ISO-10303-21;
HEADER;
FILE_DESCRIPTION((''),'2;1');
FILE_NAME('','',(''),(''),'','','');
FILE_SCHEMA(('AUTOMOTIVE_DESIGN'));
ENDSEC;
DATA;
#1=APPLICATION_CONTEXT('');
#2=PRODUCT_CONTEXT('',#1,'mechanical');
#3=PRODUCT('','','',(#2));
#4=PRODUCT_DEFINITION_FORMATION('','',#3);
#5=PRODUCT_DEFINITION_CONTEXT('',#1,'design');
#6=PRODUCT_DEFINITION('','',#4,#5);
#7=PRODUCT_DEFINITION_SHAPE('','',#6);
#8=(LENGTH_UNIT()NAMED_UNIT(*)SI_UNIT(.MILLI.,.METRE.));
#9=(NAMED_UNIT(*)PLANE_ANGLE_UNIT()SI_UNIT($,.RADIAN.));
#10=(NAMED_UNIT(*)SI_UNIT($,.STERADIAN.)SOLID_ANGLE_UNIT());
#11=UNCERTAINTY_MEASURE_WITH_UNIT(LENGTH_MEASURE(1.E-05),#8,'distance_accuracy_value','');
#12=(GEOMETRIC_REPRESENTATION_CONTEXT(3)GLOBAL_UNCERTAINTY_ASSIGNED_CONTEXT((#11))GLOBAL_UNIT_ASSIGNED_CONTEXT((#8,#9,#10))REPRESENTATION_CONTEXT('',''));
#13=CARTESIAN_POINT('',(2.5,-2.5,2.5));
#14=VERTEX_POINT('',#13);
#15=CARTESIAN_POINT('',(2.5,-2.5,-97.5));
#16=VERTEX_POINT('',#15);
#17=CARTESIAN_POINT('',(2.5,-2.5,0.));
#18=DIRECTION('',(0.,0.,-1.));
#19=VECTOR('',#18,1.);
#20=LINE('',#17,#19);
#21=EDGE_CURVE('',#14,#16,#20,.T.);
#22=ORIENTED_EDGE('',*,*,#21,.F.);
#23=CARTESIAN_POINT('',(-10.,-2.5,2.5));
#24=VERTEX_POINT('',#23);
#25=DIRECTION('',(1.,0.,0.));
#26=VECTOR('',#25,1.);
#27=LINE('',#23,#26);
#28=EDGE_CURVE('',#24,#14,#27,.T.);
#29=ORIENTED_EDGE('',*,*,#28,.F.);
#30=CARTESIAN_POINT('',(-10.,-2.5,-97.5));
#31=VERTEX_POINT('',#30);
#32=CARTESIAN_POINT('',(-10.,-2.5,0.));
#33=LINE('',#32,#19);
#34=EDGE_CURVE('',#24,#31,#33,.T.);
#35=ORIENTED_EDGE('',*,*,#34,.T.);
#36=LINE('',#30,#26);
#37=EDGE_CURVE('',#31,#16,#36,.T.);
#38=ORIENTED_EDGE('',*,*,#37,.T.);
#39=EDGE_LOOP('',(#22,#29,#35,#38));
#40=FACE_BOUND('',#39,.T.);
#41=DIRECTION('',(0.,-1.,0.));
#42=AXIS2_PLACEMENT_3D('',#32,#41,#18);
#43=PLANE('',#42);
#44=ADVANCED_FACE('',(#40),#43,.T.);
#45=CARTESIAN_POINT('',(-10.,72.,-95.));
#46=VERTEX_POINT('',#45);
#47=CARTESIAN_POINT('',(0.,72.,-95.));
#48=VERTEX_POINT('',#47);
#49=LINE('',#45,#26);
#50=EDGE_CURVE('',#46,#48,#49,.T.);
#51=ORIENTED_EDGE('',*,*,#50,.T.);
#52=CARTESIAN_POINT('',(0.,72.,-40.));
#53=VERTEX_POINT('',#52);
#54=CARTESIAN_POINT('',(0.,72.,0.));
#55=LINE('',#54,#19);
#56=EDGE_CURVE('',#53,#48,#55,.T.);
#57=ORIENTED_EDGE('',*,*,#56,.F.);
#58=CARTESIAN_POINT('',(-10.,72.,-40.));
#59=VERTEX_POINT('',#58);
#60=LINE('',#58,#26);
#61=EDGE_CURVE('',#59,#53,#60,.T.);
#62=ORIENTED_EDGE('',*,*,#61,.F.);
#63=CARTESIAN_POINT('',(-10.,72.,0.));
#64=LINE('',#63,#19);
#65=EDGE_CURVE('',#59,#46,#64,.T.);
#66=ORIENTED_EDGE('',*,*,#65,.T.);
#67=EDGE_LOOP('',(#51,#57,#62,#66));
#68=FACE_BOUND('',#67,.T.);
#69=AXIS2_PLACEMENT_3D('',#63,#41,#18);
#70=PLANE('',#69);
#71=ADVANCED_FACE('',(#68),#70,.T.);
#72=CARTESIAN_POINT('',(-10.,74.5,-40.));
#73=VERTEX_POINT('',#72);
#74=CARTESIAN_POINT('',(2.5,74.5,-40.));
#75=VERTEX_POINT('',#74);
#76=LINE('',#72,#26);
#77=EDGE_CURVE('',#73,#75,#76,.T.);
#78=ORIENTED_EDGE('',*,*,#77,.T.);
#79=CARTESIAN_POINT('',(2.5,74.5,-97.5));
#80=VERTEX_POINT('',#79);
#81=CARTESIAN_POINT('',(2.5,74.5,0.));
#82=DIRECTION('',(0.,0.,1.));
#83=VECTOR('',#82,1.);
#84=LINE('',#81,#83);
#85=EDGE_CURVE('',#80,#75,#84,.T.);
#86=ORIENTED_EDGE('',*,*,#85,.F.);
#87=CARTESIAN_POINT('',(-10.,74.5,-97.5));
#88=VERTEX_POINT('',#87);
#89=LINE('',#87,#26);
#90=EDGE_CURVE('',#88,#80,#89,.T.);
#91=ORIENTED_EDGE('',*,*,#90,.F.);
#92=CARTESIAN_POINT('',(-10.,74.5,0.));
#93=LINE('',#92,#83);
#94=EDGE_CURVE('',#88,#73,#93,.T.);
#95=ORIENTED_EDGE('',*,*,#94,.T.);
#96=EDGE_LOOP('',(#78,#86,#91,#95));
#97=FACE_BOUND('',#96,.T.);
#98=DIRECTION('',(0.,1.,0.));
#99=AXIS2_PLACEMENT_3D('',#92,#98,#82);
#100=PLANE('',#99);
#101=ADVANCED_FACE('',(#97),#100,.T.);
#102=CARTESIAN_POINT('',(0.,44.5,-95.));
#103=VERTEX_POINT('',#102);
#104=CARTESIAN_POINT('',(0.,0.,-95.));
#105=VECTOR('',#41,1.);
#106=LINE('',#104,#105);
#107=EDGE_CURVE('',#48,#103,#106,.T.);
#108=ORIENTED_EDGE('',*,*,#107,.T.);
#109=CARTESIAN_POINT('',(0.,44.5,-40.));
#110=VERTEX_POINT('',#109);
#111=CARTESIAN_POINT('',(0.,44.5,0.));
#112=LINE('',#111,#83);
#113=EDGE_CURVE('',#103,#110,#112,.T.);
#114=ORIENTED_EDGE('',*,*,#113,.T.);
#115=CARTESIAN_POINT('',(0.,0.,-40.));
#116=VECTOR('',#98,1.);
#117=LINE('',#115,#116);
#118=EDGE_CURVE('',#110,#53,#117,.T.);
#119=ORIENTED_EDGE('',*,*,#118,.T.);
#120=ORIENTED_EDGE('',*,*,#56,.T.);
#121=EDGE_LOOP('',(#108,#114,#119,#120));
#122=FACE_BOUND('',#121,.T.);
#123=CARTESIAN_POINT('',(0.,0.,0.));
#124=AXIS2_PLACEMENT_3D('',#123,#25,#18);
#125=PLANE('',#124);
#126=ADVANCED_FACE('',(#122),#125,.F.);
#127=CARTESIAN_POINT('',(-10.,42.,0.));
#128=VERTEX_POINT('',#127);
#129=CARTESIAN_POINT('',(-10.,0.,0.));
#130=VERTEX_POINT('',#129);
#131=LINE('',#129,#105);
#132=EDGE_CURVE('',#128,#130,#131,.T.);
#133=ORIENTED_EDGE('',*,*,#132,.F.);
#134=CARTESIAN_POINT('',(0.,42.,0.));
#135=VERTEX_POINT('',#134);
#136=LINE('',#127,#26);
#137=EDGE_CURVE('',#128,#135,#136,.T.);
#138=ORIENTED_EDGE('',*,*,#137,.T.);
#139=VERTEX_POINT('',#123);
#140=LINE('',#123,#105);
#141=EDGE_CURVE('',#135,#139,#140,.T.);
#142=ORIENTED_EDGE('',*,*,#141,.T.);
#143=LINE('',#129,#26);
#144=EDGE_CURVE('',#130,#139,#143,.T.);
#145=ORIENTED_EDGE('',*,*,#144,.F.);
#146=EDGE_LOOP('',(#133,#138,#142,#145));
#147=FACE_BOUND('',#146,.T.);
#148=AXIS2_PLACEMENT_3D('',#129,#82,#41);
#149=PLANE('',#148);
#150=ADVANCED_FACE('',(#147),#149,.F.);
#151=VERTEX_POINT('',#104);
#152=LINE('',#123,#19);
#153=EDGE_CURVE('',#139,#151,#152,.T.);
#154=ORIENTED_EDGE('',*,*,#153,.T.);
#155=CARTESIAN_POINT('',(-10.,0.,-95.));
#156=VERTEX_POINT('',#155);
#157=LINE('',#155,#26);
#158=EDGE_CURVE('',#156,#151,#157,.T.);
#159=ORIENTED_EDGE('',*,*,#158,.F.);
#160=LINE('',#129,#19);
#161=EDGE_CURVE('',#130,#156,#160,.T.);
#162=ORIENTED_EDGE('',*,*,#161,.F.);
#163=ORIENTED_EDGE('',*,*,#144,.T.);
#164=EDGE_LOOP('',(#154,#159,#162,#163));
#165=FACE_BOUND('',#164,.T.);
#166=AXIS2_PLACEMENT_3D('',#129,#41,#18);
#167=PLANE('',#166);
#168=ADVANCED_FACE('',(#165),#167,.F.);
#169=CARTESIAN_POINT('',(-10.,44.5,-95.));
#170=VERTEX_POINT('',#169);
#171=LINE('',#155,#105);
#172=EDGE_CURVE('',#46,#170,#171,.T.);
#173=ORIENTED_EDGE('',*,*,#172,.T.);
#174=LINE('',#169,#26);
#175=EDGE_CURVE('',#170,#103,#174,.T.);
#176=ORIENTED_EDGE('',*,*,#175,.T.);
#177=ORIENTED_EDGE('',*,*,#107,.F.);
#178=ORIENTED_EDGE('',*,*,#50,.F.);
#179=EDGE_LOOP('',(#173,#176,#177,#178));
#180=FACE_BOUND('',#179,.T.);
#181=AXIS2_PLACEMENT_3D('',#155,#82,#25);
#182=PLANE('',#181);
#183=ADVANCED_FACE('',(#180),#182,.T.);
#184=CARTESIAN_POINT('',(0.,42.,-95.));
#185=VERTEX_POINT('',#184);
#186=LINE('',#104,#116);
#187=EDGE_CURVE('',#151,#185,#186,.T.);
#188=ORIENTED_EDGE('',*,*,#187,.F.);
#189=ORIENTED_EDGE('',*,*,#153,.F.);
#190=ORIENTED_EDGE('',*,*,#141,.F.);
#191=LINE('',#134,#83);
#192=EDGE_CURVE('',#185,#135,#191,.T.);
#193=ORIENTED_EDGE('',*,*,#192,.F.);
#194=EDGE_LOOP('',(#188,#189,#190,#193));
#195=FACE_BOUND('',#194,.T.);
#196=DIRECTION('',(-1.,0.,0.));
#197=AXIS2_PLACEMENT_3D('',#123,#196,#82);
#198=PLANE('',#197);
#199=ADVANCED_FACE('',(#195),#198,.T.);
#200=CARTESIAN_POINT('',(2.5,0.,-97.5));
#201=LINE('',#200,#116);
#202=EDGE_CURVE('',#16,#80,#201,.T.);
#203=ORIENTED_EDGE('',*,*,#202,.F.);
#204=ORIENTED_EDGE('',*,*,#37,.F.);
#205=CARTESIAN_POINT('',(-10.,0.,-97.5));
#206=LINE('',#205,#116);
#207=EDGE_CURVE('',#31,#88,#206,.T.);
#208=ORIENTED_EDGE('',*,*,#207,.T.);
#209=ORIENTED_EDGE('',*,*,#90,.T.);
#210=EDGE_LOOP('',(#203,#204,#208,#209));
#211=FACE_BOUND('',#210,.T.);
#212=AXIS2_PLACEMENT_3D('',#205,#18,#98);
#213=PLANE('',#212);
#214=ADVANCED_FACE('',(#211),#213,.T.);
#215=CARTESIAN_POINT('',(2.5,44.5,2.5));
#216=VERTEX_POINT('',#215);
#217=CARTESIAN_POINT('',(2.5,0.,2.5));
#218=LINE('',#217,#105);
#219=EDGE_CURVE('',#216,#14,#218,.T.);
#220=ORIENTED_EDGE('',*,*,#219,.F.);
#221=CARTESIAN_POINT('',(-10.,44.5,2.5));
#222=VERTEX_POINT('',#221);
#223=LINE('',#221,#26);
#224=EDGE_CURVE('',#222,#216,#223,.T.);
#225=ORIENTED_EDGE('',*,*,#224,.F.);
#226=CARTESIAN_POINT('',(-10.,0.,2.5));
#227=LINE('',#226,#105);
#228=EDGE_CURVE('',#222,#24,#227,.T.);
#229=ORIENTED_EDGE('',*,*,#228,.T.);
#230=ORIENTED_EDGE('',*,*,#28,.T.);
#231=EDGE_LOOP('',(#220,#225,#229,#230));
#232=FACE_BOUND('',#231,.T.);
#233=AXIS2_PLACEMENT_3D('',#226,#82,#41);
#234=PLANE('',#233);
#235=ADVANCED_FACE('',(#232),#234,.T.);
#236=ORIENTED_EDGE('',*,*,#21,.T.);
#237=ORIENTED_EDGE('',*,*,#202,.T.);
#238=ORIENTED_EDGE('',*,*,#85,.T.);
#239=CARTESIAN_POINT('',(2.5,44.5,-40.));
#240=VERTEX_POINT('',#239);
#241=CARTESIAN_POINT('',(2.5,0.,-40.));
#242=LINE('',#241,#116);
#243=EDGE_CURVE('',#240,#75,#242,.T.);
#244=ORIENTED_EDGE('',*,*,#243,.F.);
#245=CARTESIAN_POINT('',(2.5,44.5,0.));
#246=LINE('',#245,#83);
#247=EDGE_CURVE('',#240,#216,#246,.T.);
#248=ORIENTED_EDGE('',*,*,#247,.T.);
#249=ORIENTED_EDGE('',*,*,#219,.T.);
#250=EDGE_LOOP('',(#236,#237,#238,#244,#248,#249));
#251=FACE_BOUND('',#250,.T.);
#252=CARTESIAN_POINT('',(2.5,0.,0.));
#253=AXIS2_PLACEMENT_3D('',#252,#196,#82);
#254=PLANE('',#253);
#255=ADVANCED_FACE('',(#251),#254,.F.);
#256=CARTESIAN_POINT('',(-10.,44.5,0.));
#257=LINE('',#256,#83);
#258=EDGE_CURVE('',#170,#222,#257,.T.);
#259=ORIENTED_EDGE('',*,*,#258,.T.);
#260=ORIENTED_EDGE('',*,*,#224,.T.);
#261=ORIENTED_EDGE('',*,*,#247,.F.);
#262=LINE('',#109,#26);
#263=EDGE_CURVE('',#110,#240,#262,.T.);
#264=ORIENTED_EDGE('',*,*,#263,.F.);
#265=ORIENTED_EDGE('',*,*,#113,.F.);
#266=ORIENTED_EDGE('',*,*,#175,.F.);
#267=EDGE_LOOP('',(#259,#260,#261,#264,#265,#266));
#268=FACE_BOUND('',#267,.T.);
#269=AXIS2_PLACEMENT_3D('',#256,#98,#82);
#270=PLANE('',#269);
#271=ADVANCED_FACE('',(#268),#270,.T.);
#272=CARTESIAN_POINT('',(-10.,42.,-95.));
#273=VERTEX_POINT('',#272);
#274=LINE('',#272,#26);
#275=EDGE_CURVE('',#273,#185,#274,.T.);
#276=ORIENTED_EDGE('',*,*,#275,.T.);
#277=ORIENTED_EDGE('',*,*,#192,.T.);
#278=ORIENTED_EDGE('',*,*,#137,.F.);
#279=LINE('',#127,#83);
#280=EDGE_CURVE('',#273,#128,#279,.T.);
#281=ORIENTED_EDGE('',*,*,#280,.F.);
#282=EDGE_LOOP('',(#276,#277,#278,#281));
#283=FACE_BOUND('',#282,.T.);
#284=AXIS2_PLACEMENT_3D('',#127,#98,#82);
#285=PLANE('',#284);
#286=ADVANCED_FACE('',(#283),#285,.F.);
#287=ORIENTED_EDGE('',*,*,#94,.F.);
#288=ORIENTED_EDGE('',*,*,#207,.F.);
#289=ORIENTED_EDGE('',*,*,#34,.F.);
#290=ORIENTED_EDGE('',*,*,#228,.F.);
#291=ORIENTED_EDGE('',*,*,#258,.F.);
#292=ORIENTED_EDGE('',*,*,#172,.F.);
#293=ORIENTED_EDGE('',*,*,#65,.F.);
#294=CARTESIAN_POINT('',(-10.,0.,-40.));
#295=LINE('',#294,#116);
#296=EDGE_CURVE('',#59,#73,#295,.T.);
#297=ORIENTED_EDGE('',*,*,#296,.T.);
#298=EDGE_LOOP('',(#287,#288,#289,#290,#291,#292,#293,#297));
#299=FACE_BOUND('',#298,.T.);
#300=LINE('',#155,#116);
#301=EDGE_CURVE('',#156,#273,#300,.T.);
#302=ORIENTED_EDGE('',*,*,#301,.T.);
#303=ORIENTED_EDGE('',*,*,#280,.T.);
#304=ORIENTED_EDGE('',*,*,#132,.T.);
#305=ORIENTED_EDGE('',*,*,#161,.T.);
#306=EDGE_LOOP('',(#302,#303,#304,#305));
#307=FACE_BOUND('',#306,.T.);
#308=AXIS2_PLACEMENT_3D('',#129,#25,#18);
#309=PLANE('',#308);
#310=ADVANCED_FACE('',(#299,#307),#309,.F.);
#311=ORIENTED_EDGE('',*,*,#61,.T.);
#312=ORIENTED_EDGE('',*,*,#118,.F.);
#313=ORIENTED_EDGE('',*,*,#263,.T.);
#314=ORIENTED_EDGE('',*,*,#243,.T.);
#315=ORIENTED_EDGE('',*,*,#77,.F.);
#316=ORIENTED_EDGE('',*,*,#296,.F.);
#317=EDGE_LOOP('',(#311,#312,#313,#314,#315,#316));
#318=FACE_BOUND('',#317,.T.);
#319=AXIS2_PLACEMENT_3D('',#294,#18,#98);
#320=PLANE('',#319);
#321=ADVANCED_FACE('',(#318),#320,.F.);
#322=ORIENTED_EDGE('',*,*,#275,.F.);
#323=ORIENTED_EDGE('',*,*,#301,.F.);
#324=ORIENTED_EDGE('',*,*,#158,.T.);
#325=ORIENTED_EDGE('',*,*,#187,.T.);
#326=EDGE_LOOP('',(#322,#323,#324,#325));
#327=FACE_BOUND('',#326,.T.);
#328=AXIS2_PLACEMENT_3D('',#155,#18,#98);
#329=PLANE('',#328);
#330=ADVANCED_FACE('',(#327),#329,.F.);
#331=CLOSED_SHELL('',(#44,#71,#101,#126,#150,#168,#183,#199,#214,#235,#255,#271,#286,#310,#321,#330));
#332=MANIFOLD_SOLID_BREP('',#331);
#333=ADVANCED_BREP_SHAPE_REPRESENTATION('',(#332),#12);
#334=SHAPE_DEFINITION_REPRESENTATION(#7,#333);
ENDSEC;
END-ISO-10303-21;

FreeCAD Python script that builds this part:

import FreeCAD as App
import Part
import Sketcher
Q = App.Units.Quantity

doc = App.newDocument("Part")
params = doc.addObject("Spreadsheet::Sheet", "Params")
for row, (alias, value) in enumerate([
    ("sketch1_width", "42 mm"),
    ("sketch1_height", "95 mm"),
    ("pad1_length", "2.5 mm"),
    ("sketch2_width", "47 mm"),
    ("sketch2_width2", "42 mm"),
    ("sketch2_height", "100 mm"),
    ("sketch2_height2", "95 mm"),
    ("pad2_length", "2.5 mm"),
    ("pad2_length2", "10 mm"),
    ("sketch3_width", "30 mm"),
    ("sketch3_height", "55 mm"),
    ("sketch3_width2", "2.5 mm"),
    ("pad3_length", "12.5 mm"),
    ("sketch4_height", "55 mm"),
    ("sketch4_width", "27.5 mm"),
    ("pad4_length", "2.5 mm"),
], start=1):
    params.set(f"A{row}", alias)
    params.set(f"B{row}", "=" + value)
    params.setAlias(f"B{row}", alias)

body = doc.addObject("PartDesign::Body", "Body")

sketch1 = body.newObject("Sketcher::SketchObject", "Sketch")
sketch1.AttachmentSupport = (doc.getObject("YZ_Plane"), [""])
sketch1.MapMode = "FlatFace"
sketch1.addGeometry(Part.LineSegment(App.Vector(42, 0, 0), App.Vector(0, 0, 0)), False)
sketch1.addGeometry(Part.LineSegment(App.Vector(0, 0, 0), App.Vector(0, -95, 0)), False)
sketch1.addGeometry(Part.LineSegment(App.Vector(0, -95, 0), App.Vector(42, -95, 0)), False)
sketch1.addGeometry(Part.LineSegment(App.Vector(42, -95, 0), App.Vector(42, 0, 0)), False)
sketch1.addConstraint(Sketcher.Constraint("Coincident", 0, 2, 1, 1))
sketch1.addConstraint(Sketcher.Constraint("Coincident", 1, 2, 2, 1))
sketch1.addConstraint(Sketcher.Constraint("Coincident", 2, 2, 3, 1))
sketch1.addConstraint(Sketcher.Constraint("Coincident", 3, 2, 0, 1))
sketch1.addConstraint(Sketcher.Constraint("Horizontal", 0))
sketch1.addConstraint(Sketcher.Constraint("Vertical", 1))
sketch1.addConstraint(Sketcher.Constraint("Horizontal", 2))
sketch1.addConstraint(Sketcher.Constraint("Vertical", 3))
sketch1.addConstraint(Sketcher.Constraint("Coincident", 0, 2, -1, 1))
sketch1.addConstraint(Sketcher.Constraint("DistanceX", 0, 2, 0, 1, Q("42 mm")))
sketch1.addConstraint(Sketcher.Constraint("DistanceY", 1, 2, 1, 1, Q("95 mm")))
sketch1.setExpression("Constraints[9]", "Params.sketch1_width")
sketch1.setExpression("Constraints[10]", "Params.sketch1_height")
pad1 = body.newObject("PartDesign::Pad", "Pad")
pad1.Profile = sketch1
pad1.setExpression("Length", "Params.pad1_length")

sketch2 = body.newObject("Sketcher::SketchObject", "Sketch001")
sketch2.AttachmentSupport = (doc.getObject("YZ_Plane"), [""])
sketch2.MapMode = "FlatFace"
sketch2.addGeometry(Part.LineSegment(App.Vector(44, 2, 0), App.Vector(-2, 2, 0)), False)
sketch2.addGeometry(Part.LineSegment(App.Vector(-2, 2, 0), App.Vector(-2, -98, 0)), False)
sketch2.addGeometry(Part.LineSegment(App.Vector(-2, -98, 0), App.Vector(44, -98, 0)), False)
sketch2.addGeometry(Part.LineSegment(App.Vector(44, -98, 0), App.Vector(44, 2, 0)), False)
sketch2.addGeometry(Part.LineSegment(App.Vector(0, -95, 0), App.Vector(0, 0, 0)), False)
sketch2.addGeometry(Part.LineSegment(App.Vector(0, 0, 0), App.Vector(42, 0, 0)), False)
sketch2.addGeometry(Part.LineSegment(App.Vector(42, 0, 0), App.Vector(42, -95, 0)), False)
sketch2.addGeometry(Part.LineSegment(App.Vector(42, -95, 0), App.Vector(0, -95, 0)), False)
sketch2.addConstraint(Sketcher.Constraint("Coincident", 0, 2, 1, 1))
sketch2.addConstraint(Sketcher.Constraint("Coincident", 1, 2, 2, 1))
sketch2.addConstraint(Sketcher.Constraint("Coincident", 2, 2, 3, 1))
sketch2.addConstraint(Sketcher.Constraint("Coincident", 3, 2, 0, 1))
sketch2.addConstraint(Sketcher.Constraint("Coincident", 4, 2, 5, 1))
sketch2.addConstraint(Sketcher.Constraint("Coincident", 5, 2, 6, 1))
sketch2.addConstraint(Sketcher.Constraint("Coincident", 6, 2, 7, 1))
sketch2.addConstraint(Sketcher.Constraint("Coincident", 7, 2, 4, 1))
sketch2.addConstraint(Sketcher.Constraint("Horizontal", 0))
sketch2.addConstraint(Sketcher.Constraint("Vertical", 1))
sketch2.addConstraint(Sketcher.Constraint("Horizontal", 2))
sketch2.addConstraint(Sketcher.Constraint("Vertical", 3))
sketch2.addConstraint(Sketcher.Constraint("Vertical", 4))
sketch2.addConstraint(Sketcher.Constraint("Horizontal", 5))
sketch2.addConstraint(Sketcher.Constraint("Vertical", 6))
sketch2.addConstraint(Sketcher.Constraint("Horizontal", 7))
sketch2.addConstraint(Sketcher.Constraint("Coincident", 4, 2, -1, 1))
sketch2.addConstraint(Sketcher.Constraint("DistanceX", 0, 2, 0, 1, Q("47 mm")))
sketch2.addConstraint(Sketcher.Constraint("DistanceX", 5, 1, 5, 2, Q("42 mm")))
sketch2.addConstraint(Sketcher.Constraint("DistanceY", 1, 2, 1, 1, Q("100 mm")))
sketch2.addConstraint(Sketcher.Constraint("DistanceY", 4, 1, 4, 2, Q("95 mm")))
sketch2.addConstraint(Sketcher.Constraint("DistanceX", 0, 2, -1, 1, Q("2.5 mm")))
sketch2.addConstraint(Sketcher.Constraint("DistanceY", -1, 1, 0, 2, Q("2.5 mm")))
sketch2.setExpression("Constraints[17]", "Params.sketch2_width")
sketch2.setExpression("Constraints[18]", "Params.sketch2_width2")
sketch2.setExpression("Constraints[19]", "Params.sketch2_height")
sketch2.setExpression("Constraints[20]", "Params.sketch2_height2")
pad2 = body.newObject("PartDesign::Pad", "Pad001")
pad2.Profile = sketch2
pad2.Type = "TwoLengths"
pad2.setExpression("Length", "Params.pad2_length")
pad2.setExpression("Length2", "Params.pad2_length2")

sketch3 = body.newObject("Sketcher::SketchObject", "Sketch002")
sketch3.AttachmentSupport = (doc.getObject("YZ_Plane"), [""])
sketch3.MapMode = "FlatFace"
sketch3.AttachmentOffset = App.Placement(App.Vector(0, 0, 2.5), App.Rotation())
sketch3.addGeometry(Part.LineSegment(App.Vector(44.5, -95, 0), App.Vector(44.5, -97.5, 0)), False)
sketch3.addGeometry(Part.LineSegment(App.Vector(44.5, -97.5, 0), App.Vector(74.5, -97.5, 0)), False)
sketch3.addGeometry(Part.LineSegment(App.Vector(74.5, -97.5, 0), App.Vector(74.5, -40, 0)), False)
sketch3.addGeometry(Part.LineSegment(App.Vector(74.5, -40, 0), App.Vector(72, -40, 0)), False)
sketch3.addGeometry(Part.LineSegment(App.Vector(72, -40, 0), App.Vector(72, -95, 0)), False)
sketch3.addGeometry(Part.LineSegment(App.Vector(72, -95, 0), App.Vector(44.5, -95, 0)), False)
sketch3.addConstraint(Sketcher.Constraint("Coincident", 0, 2, 1, 1))
sketch3.addConstraint(Sketcher.Constraint("Coincident", 1, 2, 2, 1))
sketch3.addConstraint(Sketcher.Constraint("Coincident", 2, 2, 3, 1))
sketch3.addConstraint(Sketcher.Constraint("Coincident", 3, 2, 4, 1))
sketch3.addConstraint(Sketcher.Constraint("Coincident", 4, 2, 5, 1))
sketch3.addConstraint(Sketcher.Constraint("Coincident", 5, 2, 0, 1))
sketch3.addConstraint(Sketcher.Constraint("Vertical", 0))
sketch3.addConstraint(Sketcher.Constraint("Horizontal", 1))
sketch3.addConstraint(Sketcher.Constraint("Vertical", 2))
sketch3.addConstraint(Sketcher.Constraint("Horizontal", 3))
sketch3.addConstraint(Sketcher.Constraint("Vertical", 4))
sketch3.addConstraint(Sketcher.Constraint("Horizontal", 5))
sketch3.addConstraint(Sketcher.Constraint("Equal", 3, 0))
sketch3.addConstraint(Sketcher.Constraint("DistanceX", 1, 1, 1, 2, Q("30 mm")))
sketch3.addConstraint(Sketcher.Constraint("DistanceY", 4, 2, 4, 1, Q("55 mm")))
sketch3.addConstraint(Sketcher.Constraint("DistanceX", 3, 2, 3, 1, Q("2.5 mm")))
sketch3.addConstraint(Sketcher.Constraint("DistanceY", 2, 2, -1, 1, Q("40 mm")))
sketch3.addConstraint(Sketcher.Constraint("DistanceX", -1, 1, 3, 2, Q("72 mm")))
sketch3.setExpression("Constraints[13]", "Params.sketch3_width")
sketch3.setExpression("Constraints[14]", "Params.sketch3_height")
sketch3.setExpression("Constraints[15]", "Params.sketch3_width2")
pad3 = body.newObject("PartDesign::Pad", "Pad002")
pad3.Profile = sketch3
pad3.setExpression("Length", "Params.pad3_length")
pad3.Reversed = True

sketch4 = body.newObject("Sketcher::SketchObject", "Sketch003")
sketch4.AttachmentSupport = (doc.getObject("YZ_Plane"), [""])
sketch4.MapMode = "FlatFace"
sketch4.AttachmentOffset = App.Placement(App.Vector(0, 0, 2.5), App.Rotation())
sketch4.addGeometry(Part.LineSegment(App.Vector(72, -40, 0), App.Vector(44, -40, 0)), False)
sketch4.addGeometry(Part.LineSegment(App.Vector(44, -40, 0), App.Vector(44, -95, 0)), False)
sketch4.addGeometry(Part.LineSegment(App.Vector(44, -95, 0), App.Vector(72, -95, 0)), False)
sketch4.addGeometry(Part.LineSegment(App.Vector(72, -95, 0), App.Vector(72, -40, 0)), False)
sketch4.addConstraint(Sketcher.Constraint("Coincident", 0, 2, 1, 1))
sketch4.addConstraint(Sketcher.Constraint("Coincident", 1, 2, 2, 1))
sketch4.addConstraint(Sketcher.Constraint("Coincident", 2, 2, 3, 1))
sketch4.addConstraint(Sketcher.Constraint("Coincident", 3, 2, 0, 1))
sketch4.addConstraint(Sketcher.Constraint("Horizontal", 0))
sketch4.addConstraint(Sketcher.Constraint("Vertical", 1))
sketch4.addConstraint(Sketcher.Constraint("Horizontal", 2))
sketch4.addConstraint(Sketcher.Constraint("Vertical", 3))
sketch4.addConstraint(Sketcher.Constraint("DistanceY", 1, 2, 1, 1, Q("55 mm")))
sketch4.addConstraint(Sketcher.Constraint("DistanceX", 0, 2, 0, 1, Q("27.5 mm")))
sketch4.addConstraint(Sketcher.Constraint("DistanceY", 0, 2, -1, 1, Q("40 mm")))
sketch4.addConstraint(Sketcher.Constraint("DistanceX", -1, 1, 2, 2, Q("72 mm")))
sketch4.setExpression("Constraints[8]", "Params.sketch4_height")
sketch4.setExpression("Constraints[9]", "Params.sketch4_width")
pad4 = body.newObject("PartDesign::Pad", "Pad003")
pad4.Profile = sketch4
pad4.setExpression("Length", "Params.pad4_length")
pad4.Reversed = True

doc.recompute()
